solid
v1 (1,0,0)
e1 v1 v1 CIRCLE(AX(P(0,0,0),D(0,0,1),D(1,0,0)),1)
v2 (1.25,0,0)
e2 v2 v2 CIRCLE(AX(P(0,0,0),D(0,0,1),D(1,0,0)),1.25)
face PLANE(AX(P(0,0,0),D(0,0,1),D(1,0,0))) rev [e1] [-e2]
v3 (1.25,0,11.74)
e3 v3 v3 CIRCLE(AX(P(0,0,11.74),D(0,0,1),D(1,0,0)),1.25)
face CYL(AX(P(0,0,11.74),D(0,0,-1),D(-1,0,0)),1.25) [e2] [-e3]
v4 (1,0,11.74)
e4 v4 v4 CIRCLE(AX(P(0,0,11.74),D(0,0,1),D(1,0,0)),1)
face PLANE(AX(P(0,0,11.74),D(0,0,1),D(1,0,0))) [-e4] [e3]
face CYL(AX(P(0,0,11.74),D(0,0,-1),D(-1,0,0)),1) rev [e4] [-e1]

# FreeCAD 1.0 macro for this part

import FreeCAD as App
import Part
import Sketcher

V = App.Vector
Q = App.Units.Quantity

doc = App.newDocument("Part")
body = doc.addObject("PartDesign::Body", "Body")

sketch1 = body.newObject("Sketcher::SketchObject", "Sketch")
sketch1.AttachmentSupport = (doc.getObject("XY_Plane"), [""])
sketch1.MapMode = "FlatFace"
sketch1.addGeometry(Part.Circle(V(0, 0, 0), V(0, 0, 1), 1.2), False)
sketch1.addGeometry(Part.Circle(V(0, 0, 0), V(0, 0, 1), 1), False)
sketch1.addConstraint(Sketcher.Constraint("Coincident", 0, 3, -1, 1))
sketch1.addConstraint(Sketcher.Constraint("Coincident", 1, 3, -1, 1))
sketch1.addConstraint(Sketcher.Constraint("Diameter", 1, Q("2 mm")))
sketch1.addConstraint(Sketcher.Constraint("Diameter", 0, Q("2.5 mm")))
pad1 = body.newObject("PartDesign::Pad", "Pad")
pad1.Profile = sketch1
pad1.Length = 11.74

doc.recompute()
